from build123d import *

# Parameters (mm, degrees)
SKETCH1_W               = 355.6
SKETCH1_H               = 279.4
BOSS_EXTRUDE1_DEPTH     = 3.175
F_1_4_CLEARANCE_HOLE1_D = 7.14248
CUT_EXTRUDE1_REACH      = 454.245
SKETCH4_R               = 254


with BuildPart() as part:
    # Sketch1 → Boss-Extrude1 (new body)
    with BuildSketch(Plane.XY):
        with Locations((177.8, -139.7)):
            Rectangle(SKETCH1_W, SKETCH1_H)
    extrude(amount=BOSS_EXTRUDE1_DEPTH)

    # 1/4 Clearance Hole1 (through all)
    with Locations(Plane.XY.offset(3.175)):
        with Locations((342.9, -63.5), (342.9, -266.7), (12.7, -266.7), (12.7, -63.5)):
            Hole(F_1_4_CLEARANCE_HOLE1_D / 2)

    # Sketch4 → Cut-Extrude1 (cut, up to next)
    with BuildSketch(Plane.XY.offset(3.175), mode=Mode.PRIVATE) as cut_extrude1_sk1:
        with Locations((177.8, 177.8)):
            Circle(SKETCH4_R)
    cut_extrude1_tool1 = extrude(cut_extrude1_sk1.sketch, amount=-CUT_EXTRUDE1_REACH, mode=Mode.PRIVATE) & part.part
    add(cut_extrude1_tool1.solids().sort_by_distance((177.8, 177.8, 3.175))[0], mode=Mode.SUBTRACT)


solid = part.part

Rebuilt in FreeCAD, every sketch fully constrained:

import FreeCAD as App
import Part
import Sketcher
Q = App.Units.Quantity

doc = App.newDocument("Part")
body = doc.addObject("PartDesign::Body", "Body")

sketch1 = doc.addObject("Sketcher::SketchObject", "Sketch")
body.addObject(sketch1)
sketch1.AttachmentSupport = (doc.XY_Plane, [""])
sketch1.MapMode = "FlatFace"
sketch1.addGeometry([
    Part.LineSegment(App.Vector(0, 0, 0), App.Vector(0, -279.4, 0)),
    Part.LineSegment(App.Vector(0, -279.4, 0), App.Vector(355.6, -279.4, 0)),
    Part.LineSegment(App.Vector(355.6, -279.4, 0), App.Vector(355.6, 0, 0)),
    Part.LineSegment(App.Vector(355.6, 0, 0), App.Vector(0, 0, 0)),
], False)
sketch1.addConstraint([
    Sketcher.Constraint("Coincident", 0, 2, 1, 1),
    Sketcher.Constraint("Coincident", 1, 2, 2, 1),
    Sketcher.Constraint("Coincident", 2, 2, 3, 1),
    Sketcher.Constraint("Coincident", 3, 2, 0, 1),
    Sketcher.Constraint("Vertical", 0),
    Sketcher.Constraint("Horizontal", 1),
    Sketcher.Constraint("Vertical", 2),
    Sketcher.Constraint("Horizontal", 3),
    Sketcher.Constraint("Coincident", 3, 2, -1, 1),
    Sketcher.Constraint("DistanceX", 1, 1, 1, 2, Q("14 in")),
    Sketcher.Constraint("DistanceY", 0, 2, 0, 1, Q("11 in")),
])
pad1 = doc.addObject("PartDesign::Pad", "Pad")
body.addObject(pad1)
pad1.Profile = sketch1
pad1.Length = Q("0.125 in")

sketch2 = doc.addObject("Sketcher::SketchObject", "Sketch001")
body.addObject(sketch2)
sketch2.AttachmentSupport = (doc.XY_Plane, [""])
sketch2.MapMode = "FlatFace"
sketch2.AttachmentOffset = App.Placement(App.Vector(0, 0, 0.125 * 25.4), App.Rotation())
sketch2.addGeometry([
    Part.Circle(App.Vector(342.9, -63.5, 0), App.Vector(0, 0, 1), 3.57124),
    Part.Circle(App.Vector(342.9, -266.7, 0), App.Vector(0, 0, 1), 3.57124),
    Part.Circle(App.Vector(12.7, -266.7, 0), App.Vector(0, 0, 1), 3.57124),
    Part.Circle(App.Vector(12.7, -63.5, 0), App.Vector(0, 0, 1), 3.57124),
], False)
sketch2.addConstraint([
    Sketcher.Constraint("Equal", 0, 1),
    Sketcher.Constraint("Equal", 1, 2),
    Sketcher.Constraint("Equal", 2, 3),
    Sketcher.Constraint("Horizontal", 1, 3, 2, 3),
    Sketcher.Constraint("Horizontal", 0, 3, 3, 3),
    Sketcher.Constraint("Vertical", 0, 3, 1, 3),
    Sketcher.Constraint("Vertical", 2, 3, 3, 3),
    Sketcher.Constraint("DistanceY", 1, 3, 0, 3, Q("8 in")),
    Sketcher.Constraint("DistanceX", 2, 3, 1, 3, Q("13 in")),
    Sketcher.Constraint("Diameter", 0, Q("0.2812 in")),
    Sketcher.Constraint("DistanceX", -1, 1, 0, 3, Q("13.5 in")),
    Sketcher.Constraint("DistanceY", 0, 3, -1, 1, Q("2.5 in")),
])
doc.recompute()
hole = doc.addObject("PartDesign::Hole", "Hole")
body.addObject(hole)
hole.Profile = sketch2
hole.ThreadType = "None"
hole.Diameter = Q("0.2812 in")
hole.DepthType = "ThroughAll"

sketch3 = doc.addObject("Sketcher::SketchObject", "Sketch002")
body.addObject(sketch3)
sketch3.AttachmentSupport = (doc.XY_Plane, [""])
sketch3.MapMode = "FlatFace"
sketch3.AttachmentOffset = App.Placement(App.Vector(0, 0, 0.125 * 25.4), App.Rotation())
sketch3.addGeometry(Part.Circle(App.Vector(177.8, 177.8, 0), App.Vector(0, 0, 1), 254), False)
sketch3.addConstraint([
    Sketcher.Constraint("Diameter", 0, Q("20 in")),
    Sketcher.Constraint("DistanceX", -1, 1, 0, 3, Q("7 in")),
    Sketcher.Constraint("DistanceY", -1, 1, 0, 3, Q("7 in")),
])
pocket1 = doc.addObject("PartDesign::Pocket", "Pocket")
body.addObject(pocket1)
pocket1.Profile = sketch3
pocket1.Length = Q("0.125 in")

doc.recompute()
